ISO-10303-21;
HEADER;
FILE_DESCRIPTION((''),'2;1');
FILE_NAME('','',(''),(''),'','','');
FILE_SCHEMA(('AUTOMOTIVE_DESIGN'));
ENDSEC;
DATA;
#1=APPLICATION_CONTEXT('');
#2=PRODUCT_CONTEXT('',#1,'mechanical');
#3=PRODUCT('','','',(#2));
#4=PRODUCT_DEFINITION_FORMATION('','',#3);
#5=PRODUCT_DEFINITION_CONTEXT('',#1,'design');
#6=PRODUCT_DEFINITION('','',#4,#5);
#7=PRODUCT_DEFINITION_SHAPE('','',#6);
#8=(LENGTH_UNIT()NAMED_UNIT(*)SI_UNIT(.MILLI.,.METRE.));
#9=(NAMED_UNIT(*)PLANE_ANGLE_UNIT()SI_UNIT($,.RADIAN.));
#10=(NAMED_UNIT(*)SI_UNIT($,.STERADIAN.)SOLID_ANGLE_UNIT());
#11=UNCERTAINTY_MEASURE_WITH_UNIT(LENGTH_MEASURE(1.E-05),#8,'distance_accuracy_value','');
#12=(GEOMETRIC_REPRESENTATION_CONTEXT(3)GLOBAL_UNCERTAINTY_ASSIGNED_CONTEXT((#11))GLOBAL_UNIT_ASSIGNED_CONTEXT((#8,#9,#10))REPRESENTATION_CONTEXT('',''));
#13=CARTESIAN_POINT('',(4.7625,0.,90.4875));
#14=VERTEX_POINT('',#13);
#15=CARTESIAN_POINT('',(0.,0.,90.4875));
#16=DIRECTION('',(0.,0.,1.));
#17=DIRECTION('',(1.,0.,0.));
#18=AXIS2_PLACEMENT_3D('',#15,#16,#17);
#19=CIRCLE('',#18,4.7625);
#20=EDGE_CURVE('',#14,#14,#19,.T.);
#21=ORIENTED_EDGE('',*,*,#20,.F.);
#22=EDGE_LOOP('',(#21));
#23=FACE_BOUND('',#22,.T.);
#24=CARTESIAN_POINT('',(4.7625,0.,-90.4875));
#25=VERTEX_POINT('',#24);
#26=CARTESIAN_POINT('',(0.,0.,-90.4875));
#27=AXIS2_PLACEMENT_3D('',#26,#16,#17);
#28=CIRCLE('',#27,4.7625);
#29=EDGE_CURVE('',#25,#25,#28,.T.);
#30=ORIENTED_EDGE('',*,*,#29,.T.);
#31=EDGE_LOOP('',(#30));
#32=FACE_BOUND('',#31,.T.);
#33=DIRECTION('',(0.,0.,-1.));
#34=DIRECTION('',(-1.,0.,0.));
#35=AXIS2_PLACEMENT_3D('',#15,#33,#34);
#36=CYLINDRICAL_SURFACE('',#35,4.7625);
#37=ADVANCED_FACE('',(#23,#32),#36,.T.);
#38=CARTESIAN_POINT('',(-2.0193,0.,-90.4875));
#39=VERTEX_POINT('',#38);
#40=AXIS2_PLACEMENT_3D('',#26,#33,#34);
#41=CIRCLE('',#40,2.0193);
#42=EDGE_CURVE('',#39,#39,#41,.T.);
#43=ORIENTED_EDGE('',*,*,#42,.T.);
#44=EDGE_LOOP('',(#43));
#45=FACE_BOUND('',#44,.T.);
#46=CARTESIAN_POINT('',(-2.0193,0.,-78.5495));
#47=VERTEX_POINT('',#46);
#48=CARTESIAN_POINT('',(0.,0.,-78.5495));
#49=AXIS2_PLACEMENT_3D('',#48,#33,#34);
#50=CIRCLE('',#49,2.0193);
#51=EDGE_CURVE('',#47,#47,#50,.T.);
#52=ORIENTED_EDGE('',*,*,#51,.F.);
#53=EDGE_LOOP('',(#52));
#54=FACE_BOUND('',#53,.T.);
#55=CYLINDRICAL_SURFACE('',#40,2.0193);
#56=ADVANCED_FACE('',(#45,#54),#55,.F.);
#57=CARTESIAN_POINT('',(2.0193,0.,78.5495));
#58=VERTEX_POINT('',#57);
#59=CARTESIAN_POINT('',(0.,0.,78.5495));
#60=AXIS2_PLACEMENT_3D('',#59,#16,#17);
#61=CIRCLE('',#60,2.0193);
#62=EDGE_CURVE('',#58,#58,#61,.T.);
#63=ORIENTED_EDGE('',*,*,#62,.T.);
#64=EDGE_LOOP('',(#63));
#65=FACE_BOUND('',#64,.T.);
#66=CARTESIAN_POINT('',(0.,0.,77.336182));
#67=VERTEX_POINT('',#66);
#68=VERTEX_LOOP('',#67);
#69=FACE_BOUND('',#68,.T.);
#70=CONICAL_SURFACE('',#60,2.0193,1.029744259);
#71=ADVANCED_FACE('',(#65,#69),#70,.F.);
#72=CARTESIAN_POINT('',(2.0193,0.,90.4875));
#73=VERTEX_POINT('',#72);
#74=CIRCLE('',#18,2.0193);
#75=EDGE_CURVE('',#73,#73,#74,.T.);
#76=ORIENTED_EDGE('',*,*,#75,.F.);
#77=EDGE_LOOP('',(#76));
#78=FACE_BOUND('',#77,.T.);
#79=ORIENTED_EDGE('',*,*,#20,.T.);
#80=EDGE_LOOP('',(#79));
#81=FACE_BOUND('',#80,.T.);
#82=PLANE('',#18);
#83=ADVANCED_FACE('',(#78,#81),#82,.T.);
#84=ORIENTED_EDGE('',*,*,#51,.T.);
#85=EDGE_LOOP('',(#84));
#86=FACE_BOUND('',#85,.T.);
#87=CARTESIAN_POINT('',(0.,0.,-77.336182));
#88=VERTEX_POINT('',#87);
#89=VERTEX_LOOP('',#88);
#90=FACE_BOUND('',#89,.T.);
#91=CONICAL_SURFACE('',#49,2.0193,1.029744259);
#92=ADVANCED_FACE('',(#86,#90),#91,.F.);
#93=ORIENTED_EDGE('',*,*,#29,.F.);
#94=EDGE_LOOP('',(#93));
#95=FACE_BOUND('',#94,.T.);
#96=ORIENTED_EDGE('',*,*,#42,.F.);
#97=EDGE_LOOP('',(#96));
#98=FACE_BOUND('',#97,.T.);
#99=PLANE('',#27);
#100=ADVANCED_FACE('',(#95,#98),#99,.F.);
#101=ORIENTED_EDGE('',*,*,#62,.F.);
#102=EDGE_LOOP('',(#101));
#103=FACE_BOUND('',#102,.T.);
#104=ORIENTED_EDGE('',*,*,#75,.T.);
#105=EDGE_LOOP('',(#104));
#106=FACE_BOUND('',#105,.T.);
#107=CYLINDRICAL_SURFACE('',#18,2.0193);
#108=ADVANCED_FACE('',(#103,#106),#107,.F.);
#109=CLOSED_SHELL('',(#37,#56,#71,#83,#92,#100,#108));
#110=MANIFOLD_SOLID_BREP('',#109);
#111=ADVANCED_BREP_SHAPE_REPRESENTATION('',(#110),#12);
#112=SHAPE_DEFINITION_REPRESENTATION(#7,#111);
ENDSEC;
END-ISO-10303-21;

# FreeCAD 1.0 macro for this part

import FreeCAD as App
import Part
import Sketcher

V = App.Vector
Q = App.Units.Quantity

doc = App.newDocument("Part")
body = doc.addObject("PartDesign::Body", "Body")

sketch1 = body.newObject("Sketcher::SketchObject", "Sketch")
sketch1.AttachmentSupport = (doc.getObject("XY_Plane"), [""])
sketch1.MapMode = "FlatFace"
sketch1.addGeometry(Part.Circle(V(0, 0, 0), V(0, 0, 1), 4.7625), False)
sketch1.addConstraint([
    Sketcher.Constraint("Coincident", 0, 3, -1, 1),
    Sketcher.Constraint("Diameter", 0, Q("0.375 in")),
])
pad1 = body.newObject("PartDesign::Pad", "Pad")
pad1.Profile = sketch1
pad1.Length = Q("7.125 in")
pad1.Midplane = True

sketch2 = body.newObject("Sketcher::SketchObject", "Sketch001")
sketch2.AttachmentSupport = (doc.getObject("XY_Plane"), [""])
sketch2.MapMode = "FlatFace"
sketch2.AttachmentOffset = App.Placement(V(0, 0, 3.5625 * 25.4), App.Rotation())
sketch2.addGeometry(Part.Circle(V(0, 0, 0), V(0, 0, 1), 2.0193), False)
sketch2.addConstraint([
    Sketcher.Constraint("Coincident", 0, 3, -1, 1),
    Sketcher.Constraint("Diameter", 0, Q("0.159 in")),
])
doc.recompute()
hole = body.newObject("PartDesign::Hole", "Hole")
hole.Profile = sketch2
hole.ThreadType = "None"
hole.Diameter = Q("0.159 in")
hole.DepthType = "Dimension"
hole.Depth = Q("0.47 in")
hole.DrillPoint = "Angled"
hole.DrillPointAngle = 118

sketch3 = body.newObject("Sketcher::SketchObject", "Sketch002")
sketch3.AttachmentSupport = (doc.getObject("XY_Plane"), [""])
sketch3.MapMode = "FlatFace"
sketch3.AttachmentOffset = App.Placement(V(0, 0, -3.5625 * 25.4), App.Rotation())
sketch3.addGeometry(Part.Circle(V(0, 0, 0), V(0, 0, 1), 2.0193), False)
sketch3.addConstraint([
    Sketcher.Constraint("Coincident", 0, 3, -1, 1),
    Sketcher.Constraint("Diameter", 0, Q("0.159 in")),
])
doc.recompute()
hole2 = body.newObject("PartDesign::Hole", "Hole001")
hole2.Profile = sketch3
hole2.ThreadType = "None"
hole2.Diameter = Q("0.159 in")
hole2.DepthType = "Dimension"
hole2.Depth = Q("0.47 in")
hole2.DrillPoint = "Angled"
hole2.DrillPointAngle = 118
hole2.Reversed = True

doc.recompute()
